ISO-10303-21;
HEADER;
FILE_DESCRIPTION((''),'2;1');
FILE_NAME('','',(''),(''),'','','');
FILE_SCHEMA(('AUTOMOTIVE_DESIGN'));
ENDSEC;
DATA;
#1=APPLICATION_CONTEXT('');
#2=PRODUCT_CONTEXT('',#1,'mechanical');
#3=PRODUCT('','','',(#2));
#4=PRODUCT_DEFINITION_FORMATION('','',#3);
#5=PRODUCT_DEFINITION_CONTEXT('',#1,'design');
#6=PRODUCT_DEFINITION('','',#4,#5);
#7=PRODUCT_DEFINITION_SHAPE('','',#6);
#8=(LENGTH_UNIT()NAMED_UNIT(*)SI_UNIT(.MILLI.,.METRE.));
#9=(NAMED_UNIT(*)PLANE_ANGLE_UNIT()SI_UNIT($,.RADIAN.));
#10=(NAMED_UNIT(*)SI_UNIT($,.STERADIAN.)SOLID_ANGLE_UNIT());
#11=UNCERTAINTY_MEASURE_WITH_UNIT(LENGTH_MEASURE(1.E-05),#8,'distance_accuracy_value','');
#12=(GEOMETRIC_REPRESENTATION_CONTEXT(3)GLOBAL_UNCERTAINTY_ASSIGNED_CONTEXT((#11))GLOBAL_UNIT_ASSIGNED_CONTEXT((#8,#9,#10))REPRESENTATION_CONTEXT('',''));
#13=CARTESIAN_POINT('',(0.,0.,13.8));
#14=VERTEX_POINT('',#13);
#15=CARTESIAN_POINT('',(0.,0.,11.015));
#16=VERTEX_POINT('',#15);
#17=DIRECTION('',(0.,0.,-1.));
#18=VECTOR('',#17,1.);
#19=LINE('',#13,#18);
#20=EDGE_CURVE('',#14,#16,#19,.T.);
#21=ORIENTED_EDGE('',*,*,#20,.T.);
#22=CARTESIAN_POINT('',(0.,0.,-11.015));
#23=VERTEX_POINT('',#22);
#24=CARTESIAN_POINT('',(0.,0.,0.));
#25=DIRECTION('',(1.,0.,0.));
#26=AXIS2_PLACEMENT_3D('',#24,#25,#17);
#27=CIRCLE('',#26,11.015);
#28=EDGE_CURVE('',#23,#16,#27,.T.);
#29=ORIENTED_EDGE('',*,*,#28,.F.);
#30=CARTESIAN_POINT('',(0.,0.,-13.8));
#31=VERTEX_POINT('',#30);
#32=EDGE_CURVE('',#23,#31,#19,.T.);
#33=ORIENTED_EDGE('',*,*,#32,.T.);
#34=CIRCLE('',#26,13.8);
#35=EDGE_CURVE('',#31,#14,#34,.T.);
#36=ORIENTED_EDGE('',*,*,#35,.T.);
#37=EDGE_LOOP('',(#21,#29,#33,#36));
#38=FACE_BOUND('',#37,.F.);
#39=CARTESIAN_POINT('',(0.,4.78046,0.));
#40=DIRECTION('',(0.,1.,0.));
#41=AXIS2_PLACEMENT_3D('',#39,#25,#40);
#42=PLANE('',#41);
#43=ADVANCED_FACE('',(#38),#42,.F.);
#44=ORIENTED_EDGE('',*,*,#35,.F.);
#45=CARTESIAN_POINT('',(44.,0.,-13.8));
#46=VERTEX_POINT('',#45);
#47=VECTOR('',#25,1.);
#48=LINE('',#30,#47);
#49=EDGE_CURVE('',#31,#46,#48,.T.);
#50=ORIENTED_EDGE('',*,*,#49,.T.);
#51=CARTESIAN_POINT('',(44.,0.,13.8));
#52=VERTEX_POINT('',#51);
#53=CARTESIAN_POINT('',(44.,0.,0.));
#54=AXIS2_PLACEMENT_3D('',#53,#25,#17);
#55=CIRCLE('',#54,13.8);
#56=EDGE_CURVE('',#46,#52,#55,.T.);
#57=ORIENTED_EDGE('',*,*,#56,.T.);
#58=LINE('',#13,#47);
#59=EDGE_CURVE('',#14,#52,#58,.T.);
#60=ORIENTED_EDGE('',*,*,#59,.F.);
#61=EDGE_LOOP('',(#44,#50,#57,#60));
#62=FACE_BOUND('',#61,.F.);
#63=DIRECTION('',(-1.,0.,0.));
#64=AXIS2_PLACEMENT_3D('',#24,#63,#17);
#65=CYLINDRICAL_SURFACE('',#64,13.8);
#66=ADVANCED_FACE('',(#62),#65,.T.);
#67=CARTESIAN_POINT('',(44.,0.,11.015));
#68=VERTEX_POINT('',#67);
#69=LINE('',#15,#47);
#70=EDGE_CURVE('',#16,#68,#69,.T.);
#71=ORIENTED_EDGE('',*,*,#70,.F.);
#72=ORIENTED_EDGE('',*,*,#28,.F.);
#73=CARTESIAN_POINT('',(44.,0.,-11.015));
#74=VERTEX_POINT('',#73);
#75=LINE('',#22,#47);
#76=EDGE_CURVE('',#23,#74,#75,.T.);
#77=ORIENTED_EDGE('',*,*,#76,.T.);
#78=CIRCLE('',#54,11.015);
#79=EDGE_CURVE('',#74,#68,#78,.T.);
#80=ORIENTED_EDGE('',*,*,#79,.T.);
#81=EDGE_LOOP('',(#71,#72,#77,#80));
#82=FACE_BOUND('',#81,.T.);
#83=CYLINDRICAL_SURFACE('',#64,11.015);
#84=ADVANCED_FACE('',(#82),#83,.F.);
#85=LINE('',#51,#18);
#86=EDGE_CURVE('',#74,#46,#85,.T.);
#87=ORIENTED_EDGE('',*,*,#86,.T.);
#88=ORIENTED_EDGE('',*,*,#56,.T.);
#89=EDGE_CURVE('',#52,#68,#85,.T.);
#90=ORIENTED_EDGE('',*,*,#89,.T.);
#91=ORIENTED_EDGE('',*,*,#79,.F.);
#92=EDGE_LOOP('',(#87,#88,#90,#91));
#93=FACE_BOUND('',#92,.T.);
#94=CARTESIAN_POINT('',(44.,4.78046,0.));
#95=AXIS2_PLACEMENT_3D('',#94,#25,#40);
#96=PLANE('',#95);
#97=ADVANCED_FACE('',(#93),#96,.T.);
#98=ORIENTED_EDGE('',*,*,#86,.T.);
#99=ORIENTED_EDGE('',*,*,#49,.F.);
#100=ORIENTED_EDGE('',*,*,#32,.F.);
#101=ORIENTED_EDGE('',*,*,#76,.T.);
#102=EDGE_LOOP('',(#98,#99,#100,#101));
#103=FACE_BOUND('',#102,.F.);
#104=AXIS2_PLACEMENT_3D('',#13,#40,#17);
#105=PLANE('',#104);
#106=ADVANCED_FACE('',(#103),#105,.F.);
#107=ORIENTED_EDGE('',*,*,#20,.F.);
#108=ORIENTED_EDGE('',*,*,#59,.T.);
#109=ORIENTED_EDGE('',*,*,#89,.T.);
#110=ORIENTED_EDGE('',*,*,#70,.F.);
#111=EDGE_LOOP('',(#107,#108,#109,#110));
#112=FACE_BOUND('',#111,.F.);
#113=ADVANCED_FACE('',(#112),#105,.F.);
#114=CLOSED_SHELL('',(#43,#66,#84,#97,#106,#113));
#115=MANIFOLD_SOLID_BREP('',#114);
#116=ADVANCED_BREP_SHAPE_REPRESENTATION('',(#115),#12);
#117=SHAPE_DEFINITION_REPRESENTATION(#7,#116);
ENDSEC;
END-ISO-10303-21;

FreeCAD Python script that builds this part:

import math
import FreeCAD as App
import Part
import Sketcher
from FreeCAD import Vector
Q = App.Units.Quantity

doc = App.newDocument("Part")
body = doc.addObject("PartDesign::Body", "Body")

sketch1 = doc.addObject("Sketcher::SketchObject", "Sketch")
body.addObject(sketch1)
sketch1.AttachmentSupport = (doc.YZ_Plane, [""])
sketch1.MapMode = "FlatFace"
sketch1.addGeometry([
    Part.LineSegment(Vector(0, 14, 0), Vector(0, -14, 0)),
    Part.ArcOfCircle(Part.Circle(Vector(0, 0, 0), Vector(0, 0, 1), 14), math.radians(-90), math.radians(90)),
], False)
sketch1.addConstraint([
    Sketcher.Constraint("Coincident", 0, 1, 1, 2),
    Sketcher.Constraint("Coincident", 1, 1, 0, 2),
    Sketcher.Constraint("Vertical", 0),
    Sketcher.Constraint("Coincident", 1, 3, -1, 1),
    Sketcher.Constraint("PointOnObject", 0, 1, -2),
    Sketcher.Constraint("Radius", 1, Q("13.8 mm")),
])
pad1 = doc.addObject("PartDesign::Pad", "Pad")
body.addObject(pad1)
pad1.Profile = sketch1
pad1.Length = 44

sketch2 = doc.addObject("Sketcher::SketchObject", "Sketch001")
body.addObject(sketch2)
sketch2.AttachmentSupport = (doc.YZ_Plane, [""])
sketch2.MapMode = "FlatFace"
sketch2.addGeometry([
    Part.LineSegment(Vector(0, 11, 0), Vector(0, -11, 0)),
    Part.ArcOfCircle(Part.Circle(Vector(0, 0, 0), Vector(0, 0, 1), 11), math.radians(-90), math.radians(90)),
], False)
sketch2.addConstraint([
    Sketcher.Constraint("Coincident", 0, 1, 1, 2),
    Sketcher.Constraint("Coincident", 1, 1, 0, 2),
    Sketcher.Constraint("Vertical", 0),
    Sketcher.Constraint("Coincident", 1, 3, -1, 1),
    Sketcher.Constraint("PointOnObject", 0, 1, -2),
    Sketcher.Constraint("Radius", 1, Q("11.015 mm")),
])
pocket1 = doc.addObject("PartDesign::Pocket", "Pocket")
body.addObject(pocket1)
pocket1.Profile = sketch2
pocket1.Length = 44
pocket1.Reversed = True

doc.recompute()
